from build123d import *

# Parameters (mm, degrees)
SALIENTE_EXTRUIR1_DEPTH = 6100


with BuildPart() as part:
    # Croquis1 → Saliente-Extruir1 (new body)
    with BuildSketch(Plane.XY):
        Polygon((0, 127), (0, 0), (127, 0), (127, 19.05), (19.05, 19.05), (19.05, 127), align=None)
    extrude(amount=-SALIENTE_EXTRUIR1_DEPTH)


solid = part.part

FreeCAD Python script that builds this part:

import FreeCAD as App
import Part
import Sketcher
Q = App.Units.Quantity

doc = App.newDocument("Part")
body = doc.addObject("PartDesign::Body", "Body")

# Sketch on XY plane
sketch1 = doc.addObject("Sketcher::SketchObject", "Sketch")
body.addObject(sketch1)
sketch1.AttachmentSupport = (doc.XY_Plane, [""])
sketch1.MapMode = "FlatFace"
sketch1.addGeometry([
    Part.LineSegment(App.Vector(0, 127, 0), App.Vector(0, 0, 0)),  # 0
    Part.LineSegment(App.Vector(0, 0, 0), App.Vector(127, 0, 0)),  # 1
    Part.LineSegment(App.Vector(127, 0, 0), App.Vector(127, 19, 0)),  # 2
    Part.LineSegment(App.Vector(127, 19, 0), App.Vector(19, 19, 0)),  # 3
    Part.LineSegment(App.Vector(19, 19, 0), App.Vector(19, 127, 0)),  # 4
    Part.LineSegment(App.Vector(19, 127, 0), App.Vector(0, 127, 0)),  # 5
], False)
sketch1.addConstraint([
    Sketcher.Constraint("Coincident", 0, 2, 1, 1),
    Sketcher.Constraint("Coincident", 1, 2, 2, 1),
    Sketcher.Constraint("Coincident", 2, 2, 3, 1),
    Sketcher.Constraint("Coincident", 3, 2, 4, 1),
    Sketcher.Constraint("Coincident", 4, 2, 5, 1),
    Sketcher.Constraint("Coincident", 5, 2, 0, 1),
    Sketcher.Constraint("Vertical", 0),
    Sketcher.Constraint("Horizontal", 1),
    Sketcher.Constraint("Vertical", 2),
    Sketcher.Constraint("Horizontal", 3),
    Sketcher.Constraint("Vertical", 4),
    Sketcher.Constraint("Horizontal", 5),
    Sketcher.Constraint("Coincident", 0, 2, -1, 1),
    Sketcher.Constraint("Equal", 1, 0),
    Sketcher.Constraint("Equal", 5, 2),
    Sketcher.Constraint("DistanceX", 1, 1, 1, 2, Q("5 in")),
    Sketcher.Constraint("DistanceX", 3, 2, 3, 1, Q("4.25 in")),
])
pad1 = doc.addObject("PartDesign::Pad", "Pad")
body.addObject(pad1)
pad1.Profile = sketch1
pad1.Length = 6100
pad1.Reversed = True

doc.recompute()
